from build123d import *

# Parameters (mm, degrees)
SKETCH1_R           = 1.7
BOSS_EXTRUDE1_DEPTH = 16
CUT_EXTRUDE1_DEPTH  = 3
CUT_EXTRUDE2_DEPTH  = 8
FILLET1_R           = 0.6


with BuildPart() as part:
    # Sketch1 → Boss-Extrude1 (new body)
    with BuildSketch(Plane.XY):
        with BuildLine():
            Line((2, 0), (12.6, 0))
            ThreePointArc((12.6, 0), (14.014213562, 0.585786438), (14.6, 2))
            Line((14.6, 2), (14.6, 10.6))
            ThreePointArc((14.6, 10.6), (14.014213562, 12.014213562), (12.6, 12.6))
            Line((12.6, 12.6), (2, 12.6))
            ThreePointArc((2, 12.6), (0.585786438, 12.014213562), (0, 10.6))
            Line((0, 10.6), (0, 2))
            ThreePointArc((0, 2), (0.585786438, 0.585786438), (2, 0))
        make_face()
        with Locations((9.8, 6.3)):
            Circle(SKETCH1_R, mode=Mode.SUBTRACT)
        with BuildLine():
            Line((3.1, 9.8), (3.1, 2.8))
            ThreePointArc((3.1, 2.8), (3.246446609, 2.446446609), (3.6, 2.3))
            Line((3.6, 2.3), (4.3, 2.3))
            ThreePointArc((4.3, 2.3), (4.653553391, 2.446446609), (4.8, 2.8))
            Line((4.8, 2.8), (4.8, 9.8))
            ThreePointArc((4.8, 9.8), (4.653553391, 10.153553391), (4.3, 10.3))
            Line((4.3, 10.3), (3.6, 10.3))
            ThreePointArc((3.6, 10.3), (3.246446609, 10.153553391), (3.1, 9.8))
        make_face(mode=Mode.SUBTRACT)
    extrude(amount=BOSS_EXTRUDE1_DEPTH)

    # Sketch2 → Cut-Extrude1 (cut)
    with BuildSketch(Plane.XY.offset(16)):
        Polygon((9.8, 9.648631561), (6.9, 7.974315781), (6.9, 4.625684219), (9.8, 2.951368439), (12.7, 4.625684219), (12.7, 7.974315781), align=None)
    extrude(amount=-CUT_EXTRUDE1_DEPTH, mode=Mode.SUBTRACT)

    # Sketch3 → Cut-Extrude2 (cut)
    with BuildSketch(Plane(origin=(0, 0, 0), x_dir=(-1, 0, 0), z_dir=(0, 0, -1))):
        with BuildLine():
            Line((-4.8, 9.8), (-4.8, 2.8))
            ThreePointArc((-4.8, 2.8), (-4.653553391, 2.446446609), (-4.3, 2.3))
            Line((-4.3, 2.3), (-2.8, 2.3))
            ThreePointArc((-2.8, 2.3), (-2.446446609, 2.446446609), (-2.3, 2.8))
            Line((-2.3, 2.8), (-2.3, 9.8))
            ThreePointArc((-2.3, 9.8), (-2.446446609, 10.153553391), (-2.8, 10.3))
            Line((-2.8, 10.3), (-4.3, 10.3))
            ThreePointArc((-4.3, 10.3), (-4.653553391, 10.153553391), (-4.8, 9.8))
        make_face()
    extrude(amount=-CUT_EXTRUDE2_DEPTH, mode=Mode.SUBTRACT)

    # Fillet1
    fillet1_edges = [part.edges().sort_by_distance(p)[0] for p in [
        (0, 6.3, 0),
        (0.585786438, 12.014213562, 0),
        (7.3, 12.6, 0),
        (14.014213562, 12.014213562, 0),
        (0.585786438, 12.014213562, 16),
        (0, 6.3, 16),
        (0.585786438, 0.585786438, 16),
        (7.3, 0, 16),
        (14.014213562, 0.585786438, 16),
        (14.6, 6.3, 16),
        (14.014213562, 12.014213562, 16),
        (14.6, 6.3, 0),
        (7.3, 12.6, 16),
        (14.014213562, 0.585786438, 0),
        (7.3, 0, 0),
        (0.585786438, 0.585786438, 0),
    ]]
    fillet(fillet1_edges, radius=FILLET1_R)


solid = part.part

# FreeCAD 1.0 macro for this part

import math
import FreeCAD as App
import Part
import Sketcher

V = App.Vector
Q = App.Units.Quantity


def edges_at(feature, points):
    """Names of the edges that pass closest to the given points."""
    edges = feature.Shape.Edges
    near = lambda p: min(range(len(edges)), key=lambda i: edges[i].distToShape(Part.Vertex(*p))[0])
    return sorted({f"Edge{near(p) + 1}" for p in points})


def add_polygon(sketch, points):
    """Adds a closed chain of lines whose ends are joined by coincident constraints."""
    first, n = sketch.GeometryCount, len(points)
    for a, b in zip(points, points[1:] + points[:1]):
        sketch.addGeometry(Part.LineSegment(App.Vector(*a, 0), App.Vector(*b, 0)), False)
    for i in range(n):
        sketch.addConstraint(Sketcher.Constraint("Coincident", first + i, 2, first + (i + 1) % n, 1))

doc = App.newDocument("Part")
body = doc.addObject("PartDesign::Body", "Body")

sketch1 = body.newObject("Sketcher::SketchObject", "Sketch")
sketch1.AttachmentSupport = (doc.getObject("XY_Plane"), [""])
sketch1.MapMode = "FlatFace"
sketch1.addGeometry(Part.LineSegment(V(2, 0, 0), V(12.6, 0, 0)), False)
sketch1.addGeometry(Part.ArcOfCircle(Part.Circle(V(12.6, 2, 0), V(0, 0, 1), 2), math.radians(-90), math.radians(0)), False)
sketch1.addGeometry(Part.LineSegment(V(14.6, 2, 0), V(14.6, 10.6, 0)), False)
sketch1.addGeometry(Part.ArcOfCircle(Part.Circle(V(12.6, 10.6, 0), V(0, 0, 1), 2), math.radians(0), math.radians(90)), False)
sketch1.addGeometry(Part.LineSegment(V(12.6, 12.6, 0), V(2, 12.6, 0)), False)
sketch1.addGeometry(Part.ArcOfCircle(Part.Circle(V(2, 10.6, 0), V(0, 0, 1), 2), math.radians(90), math.radians(180)), False)
sketch1.addGeometry(Part.LineSegment(V(0, 10.6, 0), V(0, 2, 0)), False)
sketch1.addGeometry(Part.ArcOfCircle(Part.Circle(V(2, 2, 0), V(0, 0, 1), 2), math.radians(-180), math.radians(-90)), False)
sketch1.addGeometry(Part.LineSegment(V(3.1, 2.8, 0), V(3.1, 9.8, 0)), False)
sketch1.addGeometry(Part.ArcOfCircle(Part.Circle(V(3.6, 9.8, 0), V(0, 0, 1), 0.5), math.radians(90), math.radians(180)), False)
sketch1.addGeometry(Part.LineSegment(V(3.6, 10.3, 0), V(4.3, 10.3, 0)), False)
sketch1.addGeometry(Part.ArcOfCircle(Part.Circle(V(4.3, 9.8, 0), V(0, 0, 1), 0.5), math.radians(0), math.radians(90)), False)
sketch1.addGeometry(Part.LineSegment(V(4.8, 9.8, 0), V(4.8, 2.8, 0)), False)
sketch1.addGeometry(Part.ArcOfCircle(Part.Circle(V(4.3, 2.8, 0), V(0, 0, 1), 0.5), math.radians(-90), math.radians(0)), False)
sketch1.addGeometry(Part.LineSegment(V(4.3, 2.3, 0), V(3.6, 2.3, 0)), False)
sketch1.addGeometry(Part.ArcOfCircle(Part.Circle(V(3.6, 2.8, 0), V(0, 0, 1), 0.5), math.radians(180), math.radians(270)), False)
sketch1.addGeometry(Part.Circle(V(9.8, 6.3, 0), V(0, 0, 1), 1.7), False)
sketch1.addConstraint(Sketcher.Constraint("Tangent", 0, 2, 1, 1))
sketch1.addConstraint(Sketcher.Constraint("Tangent", 1, 2, 2, 1))
sketch1.addConstraint(Sketcher.Constraint("Tangent", 2, 2, 3, 1))
sketch1.addConstraint(Sketcher.Constraint("Tangent", 3, 2, 4, 1))
sketch1.addConstraint(Sketcher.Constraint("Tangent", 4, 2, 5, 1))
sketch1.addConstraint(Sketcher.Constraint("Tangent", 5, 2, 6, 1))
sketch1.addConstraint(Sketcher.Constraint("Tangent", 6, 2, 7, 1))
sketch1.addConstraint(Sketcher.Constraint("Tangent", 7, 2, 0, 1))
sketch1.addConstraint(Sketcher.Constraint("Tangent", 8, 2, 9, 2))
sketch1.addConstraint(Sketcher.Constraint("Tangent", 9, 1, 10, 1))
sketch1.addConstraint(Sketcher.Constraint("Tangent", 10, 2, 11, 2))
sketch1.addConstraint(Sketcher.Constraint("Tangent", 11, 1, 12, 1))
sketch1.addConstraint(Sketcher.Constraint("Tangent", 12, 2, 13, 2))
sketch1.addConstraint(Sketcher.Constraint("Tangent", 13, 1, 14, 1))
sketch1.addConstraint(Sketcher.Constraint("Tangent", 14, 2, 15, 2))
sketch1.addConstraint(Sketcher.Constraint("Tangent", 15, 1, 8, 1))
sketch1.addConstraint(Sketcher.Constraint("Horizontal", 0))
sketch1.addConstraint(Sketcher.Constraint("Vertical", 2))
sketch1.addConstraint(Sketcher.Constraint("Horizontal", 4))
sketch1.addConstraint(Sketcher.Constraint("Vertical", 6))
sketch1.addConstraint(Sketcher.Constraint("Vertical", 8))
sketch1.addConstraint(Sketcher.Constraint("Horizontal", 10))
sketch1.addConstraint(Sketcher.Constraint("Vertical", 12))
sketch1.addConstraint(Sketcher.Constraint("Horizontal", 14))
sketch1.addConstraint(Sketcher.Constraint("Equal", 1, 3))
sketch1.addConstraint(Sketcher.Constraint("Equal", 3, 5))
sketch1.addConstraint(Sketcher.Constraint("Equal", 5, 7))
sketch1.addConstraint(Sketcher.Constraint("Equal", 9, 11))
sketch1.addConstraint(Sketcher.Constraint("Equal", 11, 13))
sketch1.addConstraint(Sketcher.Constraint("Equal", 13, 15))
sketch1.addConstraint(Sketcher.Constraint("PointOnObject", 0, 2, -1))
sketch1.addConstraint(Sketcher.Constraint("PointOnObject", 5, 2, -2))
sketch1.addConstraint(Sketcher.Constraint("Radius", 1, Q("2 mm")))
sketch1.addConstraint(Sketcher.Constraint("Diameter", 16, Q("3.4 mm")))
sketch1.addConstraint(Sketcher.Constraint("Radius", 9, Q("0.5 mm")))
sketch1.addConstraint(Sketcher.Constraint("DistanceY", 8, 1, 8, 2, Q("7 mm")))
sketch1.addConstraint(Sketcher.Constraint("DistanceX", 0, 1, 0, 2, Q("10.6 mm")))
sketch1.addConstraint(Sketcher.Constraint("DistanceX", 10, 1, 10, 2, Q("0.7 mm")))
sketch1.addConstraint(Sketcher.Constraint("DistanceY", 2, 1, 2, 2, Q("8.6 mm")))
sketch1.addConstraint(Sketcher.Constraint("DistanceX", 9, 3, 3, 3, Q("9 mm")))
sketch1.addConstraint(Sketcher.Constraint("DistanceY", -1, 1, 9, 3, Q("9.8 mm")))
sketch1.addConstraint(Sketcher.Constraint("DistanceX", -1, 1, 16, 3, Q("9.8 mm")))
sketch1.addConstraint(Sketcher.Constraint("DistanceY", -1, 1, 16, 3, Q("6.3 mm")))
pad1 = body.newObject("PartDesign::Pad", "Pad")
pad1.Profile = sketch1
pad1.Length = 16

sketch2 = body.newObject("Sketcher::SketchObject", "Sketch001")
sketch2.AttachmentSupport = (doc.getObject("XY_Plane"), [""])
sketch2.MapMode = "FlatFace"
sketch2.AttachmentOffset = App.Placement(V(0, 0, 16), App.Rotation())
add_polygon(sketch2, [(9.8, 9.6), (6.9, 8), (6.9, 4.6), (9.8, 3), (12.7, 4.6), (12.7, 8)])
sketch2.addConstraint(Sketcher.Constraint("Vertical", 1))
sketch2.addConstraint(Sketcher.Constraint("Vertical", 4))
sketch2.addConstraint(Sketcher.Constraint("Parallel", 0, 3))
sketch2.addConstraint(Sketcher.Constraint("Parallel", 2, 5))
sketch2.addConstraint(Sketcher.Constraint("Horizontal", 1, 2, 3, 2))
sketch2.addConstraint(Sketcher.Constraint("Horizontal", 0, 2, 4, 2))
sketch2.addConstraint(Sketcher.Constraint("Vertical", 2, 2, 5, 2))
sketch2.addConstraint(Sketcher.Constraint("Angle", 0, Q("-150 deg")))
sketch2.addConstraint(Sketcher.Constraint("DistanceX", -1, 1, 0, 2, Q("6.9 mm")))
sketch2.addConstraint(Sketcher.Constraint("DistanceX", -1, 1, 2, 2, Q("9.8 mm")))
sketch2.addConstraint(Sketcher.Constraint("DistanceY", 1, 2, 1, 1, Q("3.348632 mm")))
sketch2.addConstraint(Sketcher.Constraint("DistanceY", -1, 1, 2, 2, Q("2.951368 mm")))
pocket1 = body.newObject("PartDesign::Pocket", "Pocket")
pocket1.Profile = sketch2
pocket1.Length = 3

sketch3 = body.newObject("Sketcher::SketchObject", "Sketch002")
sketch3.AttachmentSupport = (doc.getObject("XY_Plane"), [""])
sketch3.MapMode = "FlatFace"
sketch3.addGeometry(Part.LineSegment(V(4.8, 9.8, 0), V(4.8, 2.8, 0)), False)
sketch3.addGeometry(Part.ArcOfCircle(Part.Circle(V(4.3, 2.8, 0), V(0, 0, 1), 0.5), math.radians(-90), math.radians(0)), False)
sketch3.addGeometry(Part.LineSegment(V(4.3, 2.3, 0), V(2.8, 2.3, 0)), False)
sketch3.addGeometry(Part.ArcOfCircle(Part.Circle(V(2.8, 2.8, 0), V(0, 0, 1), 0.5), math.radians(180), math.radians(270)), False)
sketch3.addGeometry(Part.LineSegment(V(2.3, 2.8, 0), V(2.3, 9.8, 0)), False)
sketch3.addGeometry(Part.ArcOfCircle(Part.Circle(V(2.8, 9.8, 0), V(0, 0, 1), 0.5), math.radians(90), math.radians(180)), False)
sketch3.addGeometry(Part.LineSegment(V(2.8, 10.3, 0), V(4.3, 10.3, 0)), False)
sketch3.addGeometry(Part.ArcOfCircle(Part.Circle(V(4.3, 9.8, 0), V(0, 0, 1), 0.5), math.radians(0), math.radians(90)), False)
sketch3.addConstraint(Sketcher.Constraint("Tangent", 0, 2, 1, 2))
sketch3.addConstraint(Sketcher.Constraint("Tangent", 1, 1, 2, 1))
sketch3.addConstraint(Sketcher.Constraint("Tangent", 2, 2, 3, 2))
sketch3.addConstraint(Sketcher.Constraint("Tangent", 3, 1, 4, 1))
sketch3.addConstraint(Sketcher.Constraint("Tangent", 4, 2, 5, 2))
sketch3.addConstraint(Sketcher.Constraint("Tangent", 5, 1, 6, 1))
sketch3.addConstraint(Sketcher.Constraint("Tangent", 6, 2, 7, 2))
sketch3.addConstraint(Sketcher.Constraint("Tangent", 7, 1, 0, 1))
sketch3.addConstraint(Sketcher.Constraint("Vertical", 0))
sketch3.addConstraint(Sketcher.Constraint("Horizontal", 2))
sketch3.addConstraint(Sketcher.Constraint("Vertical", 4))
sketch3.addConstraint(Sketcher.Constraint("Horizontal", 6))
sketch3.addConstraint(Sketcher.Constraint("Equal", 1, 3))
sketch3.addConstraint(Sketcher.Constraint("Equal", 3, 5))
sketch3.addConstraint(Sketcher.Constraint("Equal", 5, 7))
sketch3.addConstraint(Sketcher.Constraint("Radius", 1, Q("0.5 mm")))
sketch3.addConstraint(Sketcher.Constraint("DistanceY", 0, 2, 0, 1, Q("7 mm")))
sketch3.addConstraint(Sketcher.Constraint("DistanceX", 2, 2, 2, 1, Q("1.5 mm")))
sketch3.addConstraint(Sketcher.Constraint("DistanceX", -1, 1, 1, 3, Q("4.3 mm")))
sketch3.addConstraint(Sketcher.Constraint("DistanceY", -1, 1, 1, 3, Q("2.8 mm")))
pocket2 = body.newObject("PartDesign::Pocket", "Pocket001")
pocket2.Profile = sketch3
pocket2.Length = 8
pocket2.Reversed = True
doc.recompute()

fillet = body.newObject("PartDesign::Fillet", "Fillet")
fillet.Base = (pocket2, edges_at(pocket2, [
    (0, 6.3, 0),
    (0.586, 12.014, 0),
    (7.3, 12.6, 0),
    (14.014, 12.014, 0),
    (0.586, 12.014, 16),
    (0, 6.3, 16),
    (0.586, 0.586, 16),
    (7.3, 0, 16),
    (14.014, 0.586, 16),
    (14.6, 6.3, 16),
    (14.014, 12.014, 16),
    (14.6, 6.3, 0),
    (7.3, 12.6, 16),
    (14.014, 0.586, 0),
    (7.3, 0, 0),
    (0.586, 0.586, 0),
]))
fillet.Radius = 0.6

doc.recompute()
